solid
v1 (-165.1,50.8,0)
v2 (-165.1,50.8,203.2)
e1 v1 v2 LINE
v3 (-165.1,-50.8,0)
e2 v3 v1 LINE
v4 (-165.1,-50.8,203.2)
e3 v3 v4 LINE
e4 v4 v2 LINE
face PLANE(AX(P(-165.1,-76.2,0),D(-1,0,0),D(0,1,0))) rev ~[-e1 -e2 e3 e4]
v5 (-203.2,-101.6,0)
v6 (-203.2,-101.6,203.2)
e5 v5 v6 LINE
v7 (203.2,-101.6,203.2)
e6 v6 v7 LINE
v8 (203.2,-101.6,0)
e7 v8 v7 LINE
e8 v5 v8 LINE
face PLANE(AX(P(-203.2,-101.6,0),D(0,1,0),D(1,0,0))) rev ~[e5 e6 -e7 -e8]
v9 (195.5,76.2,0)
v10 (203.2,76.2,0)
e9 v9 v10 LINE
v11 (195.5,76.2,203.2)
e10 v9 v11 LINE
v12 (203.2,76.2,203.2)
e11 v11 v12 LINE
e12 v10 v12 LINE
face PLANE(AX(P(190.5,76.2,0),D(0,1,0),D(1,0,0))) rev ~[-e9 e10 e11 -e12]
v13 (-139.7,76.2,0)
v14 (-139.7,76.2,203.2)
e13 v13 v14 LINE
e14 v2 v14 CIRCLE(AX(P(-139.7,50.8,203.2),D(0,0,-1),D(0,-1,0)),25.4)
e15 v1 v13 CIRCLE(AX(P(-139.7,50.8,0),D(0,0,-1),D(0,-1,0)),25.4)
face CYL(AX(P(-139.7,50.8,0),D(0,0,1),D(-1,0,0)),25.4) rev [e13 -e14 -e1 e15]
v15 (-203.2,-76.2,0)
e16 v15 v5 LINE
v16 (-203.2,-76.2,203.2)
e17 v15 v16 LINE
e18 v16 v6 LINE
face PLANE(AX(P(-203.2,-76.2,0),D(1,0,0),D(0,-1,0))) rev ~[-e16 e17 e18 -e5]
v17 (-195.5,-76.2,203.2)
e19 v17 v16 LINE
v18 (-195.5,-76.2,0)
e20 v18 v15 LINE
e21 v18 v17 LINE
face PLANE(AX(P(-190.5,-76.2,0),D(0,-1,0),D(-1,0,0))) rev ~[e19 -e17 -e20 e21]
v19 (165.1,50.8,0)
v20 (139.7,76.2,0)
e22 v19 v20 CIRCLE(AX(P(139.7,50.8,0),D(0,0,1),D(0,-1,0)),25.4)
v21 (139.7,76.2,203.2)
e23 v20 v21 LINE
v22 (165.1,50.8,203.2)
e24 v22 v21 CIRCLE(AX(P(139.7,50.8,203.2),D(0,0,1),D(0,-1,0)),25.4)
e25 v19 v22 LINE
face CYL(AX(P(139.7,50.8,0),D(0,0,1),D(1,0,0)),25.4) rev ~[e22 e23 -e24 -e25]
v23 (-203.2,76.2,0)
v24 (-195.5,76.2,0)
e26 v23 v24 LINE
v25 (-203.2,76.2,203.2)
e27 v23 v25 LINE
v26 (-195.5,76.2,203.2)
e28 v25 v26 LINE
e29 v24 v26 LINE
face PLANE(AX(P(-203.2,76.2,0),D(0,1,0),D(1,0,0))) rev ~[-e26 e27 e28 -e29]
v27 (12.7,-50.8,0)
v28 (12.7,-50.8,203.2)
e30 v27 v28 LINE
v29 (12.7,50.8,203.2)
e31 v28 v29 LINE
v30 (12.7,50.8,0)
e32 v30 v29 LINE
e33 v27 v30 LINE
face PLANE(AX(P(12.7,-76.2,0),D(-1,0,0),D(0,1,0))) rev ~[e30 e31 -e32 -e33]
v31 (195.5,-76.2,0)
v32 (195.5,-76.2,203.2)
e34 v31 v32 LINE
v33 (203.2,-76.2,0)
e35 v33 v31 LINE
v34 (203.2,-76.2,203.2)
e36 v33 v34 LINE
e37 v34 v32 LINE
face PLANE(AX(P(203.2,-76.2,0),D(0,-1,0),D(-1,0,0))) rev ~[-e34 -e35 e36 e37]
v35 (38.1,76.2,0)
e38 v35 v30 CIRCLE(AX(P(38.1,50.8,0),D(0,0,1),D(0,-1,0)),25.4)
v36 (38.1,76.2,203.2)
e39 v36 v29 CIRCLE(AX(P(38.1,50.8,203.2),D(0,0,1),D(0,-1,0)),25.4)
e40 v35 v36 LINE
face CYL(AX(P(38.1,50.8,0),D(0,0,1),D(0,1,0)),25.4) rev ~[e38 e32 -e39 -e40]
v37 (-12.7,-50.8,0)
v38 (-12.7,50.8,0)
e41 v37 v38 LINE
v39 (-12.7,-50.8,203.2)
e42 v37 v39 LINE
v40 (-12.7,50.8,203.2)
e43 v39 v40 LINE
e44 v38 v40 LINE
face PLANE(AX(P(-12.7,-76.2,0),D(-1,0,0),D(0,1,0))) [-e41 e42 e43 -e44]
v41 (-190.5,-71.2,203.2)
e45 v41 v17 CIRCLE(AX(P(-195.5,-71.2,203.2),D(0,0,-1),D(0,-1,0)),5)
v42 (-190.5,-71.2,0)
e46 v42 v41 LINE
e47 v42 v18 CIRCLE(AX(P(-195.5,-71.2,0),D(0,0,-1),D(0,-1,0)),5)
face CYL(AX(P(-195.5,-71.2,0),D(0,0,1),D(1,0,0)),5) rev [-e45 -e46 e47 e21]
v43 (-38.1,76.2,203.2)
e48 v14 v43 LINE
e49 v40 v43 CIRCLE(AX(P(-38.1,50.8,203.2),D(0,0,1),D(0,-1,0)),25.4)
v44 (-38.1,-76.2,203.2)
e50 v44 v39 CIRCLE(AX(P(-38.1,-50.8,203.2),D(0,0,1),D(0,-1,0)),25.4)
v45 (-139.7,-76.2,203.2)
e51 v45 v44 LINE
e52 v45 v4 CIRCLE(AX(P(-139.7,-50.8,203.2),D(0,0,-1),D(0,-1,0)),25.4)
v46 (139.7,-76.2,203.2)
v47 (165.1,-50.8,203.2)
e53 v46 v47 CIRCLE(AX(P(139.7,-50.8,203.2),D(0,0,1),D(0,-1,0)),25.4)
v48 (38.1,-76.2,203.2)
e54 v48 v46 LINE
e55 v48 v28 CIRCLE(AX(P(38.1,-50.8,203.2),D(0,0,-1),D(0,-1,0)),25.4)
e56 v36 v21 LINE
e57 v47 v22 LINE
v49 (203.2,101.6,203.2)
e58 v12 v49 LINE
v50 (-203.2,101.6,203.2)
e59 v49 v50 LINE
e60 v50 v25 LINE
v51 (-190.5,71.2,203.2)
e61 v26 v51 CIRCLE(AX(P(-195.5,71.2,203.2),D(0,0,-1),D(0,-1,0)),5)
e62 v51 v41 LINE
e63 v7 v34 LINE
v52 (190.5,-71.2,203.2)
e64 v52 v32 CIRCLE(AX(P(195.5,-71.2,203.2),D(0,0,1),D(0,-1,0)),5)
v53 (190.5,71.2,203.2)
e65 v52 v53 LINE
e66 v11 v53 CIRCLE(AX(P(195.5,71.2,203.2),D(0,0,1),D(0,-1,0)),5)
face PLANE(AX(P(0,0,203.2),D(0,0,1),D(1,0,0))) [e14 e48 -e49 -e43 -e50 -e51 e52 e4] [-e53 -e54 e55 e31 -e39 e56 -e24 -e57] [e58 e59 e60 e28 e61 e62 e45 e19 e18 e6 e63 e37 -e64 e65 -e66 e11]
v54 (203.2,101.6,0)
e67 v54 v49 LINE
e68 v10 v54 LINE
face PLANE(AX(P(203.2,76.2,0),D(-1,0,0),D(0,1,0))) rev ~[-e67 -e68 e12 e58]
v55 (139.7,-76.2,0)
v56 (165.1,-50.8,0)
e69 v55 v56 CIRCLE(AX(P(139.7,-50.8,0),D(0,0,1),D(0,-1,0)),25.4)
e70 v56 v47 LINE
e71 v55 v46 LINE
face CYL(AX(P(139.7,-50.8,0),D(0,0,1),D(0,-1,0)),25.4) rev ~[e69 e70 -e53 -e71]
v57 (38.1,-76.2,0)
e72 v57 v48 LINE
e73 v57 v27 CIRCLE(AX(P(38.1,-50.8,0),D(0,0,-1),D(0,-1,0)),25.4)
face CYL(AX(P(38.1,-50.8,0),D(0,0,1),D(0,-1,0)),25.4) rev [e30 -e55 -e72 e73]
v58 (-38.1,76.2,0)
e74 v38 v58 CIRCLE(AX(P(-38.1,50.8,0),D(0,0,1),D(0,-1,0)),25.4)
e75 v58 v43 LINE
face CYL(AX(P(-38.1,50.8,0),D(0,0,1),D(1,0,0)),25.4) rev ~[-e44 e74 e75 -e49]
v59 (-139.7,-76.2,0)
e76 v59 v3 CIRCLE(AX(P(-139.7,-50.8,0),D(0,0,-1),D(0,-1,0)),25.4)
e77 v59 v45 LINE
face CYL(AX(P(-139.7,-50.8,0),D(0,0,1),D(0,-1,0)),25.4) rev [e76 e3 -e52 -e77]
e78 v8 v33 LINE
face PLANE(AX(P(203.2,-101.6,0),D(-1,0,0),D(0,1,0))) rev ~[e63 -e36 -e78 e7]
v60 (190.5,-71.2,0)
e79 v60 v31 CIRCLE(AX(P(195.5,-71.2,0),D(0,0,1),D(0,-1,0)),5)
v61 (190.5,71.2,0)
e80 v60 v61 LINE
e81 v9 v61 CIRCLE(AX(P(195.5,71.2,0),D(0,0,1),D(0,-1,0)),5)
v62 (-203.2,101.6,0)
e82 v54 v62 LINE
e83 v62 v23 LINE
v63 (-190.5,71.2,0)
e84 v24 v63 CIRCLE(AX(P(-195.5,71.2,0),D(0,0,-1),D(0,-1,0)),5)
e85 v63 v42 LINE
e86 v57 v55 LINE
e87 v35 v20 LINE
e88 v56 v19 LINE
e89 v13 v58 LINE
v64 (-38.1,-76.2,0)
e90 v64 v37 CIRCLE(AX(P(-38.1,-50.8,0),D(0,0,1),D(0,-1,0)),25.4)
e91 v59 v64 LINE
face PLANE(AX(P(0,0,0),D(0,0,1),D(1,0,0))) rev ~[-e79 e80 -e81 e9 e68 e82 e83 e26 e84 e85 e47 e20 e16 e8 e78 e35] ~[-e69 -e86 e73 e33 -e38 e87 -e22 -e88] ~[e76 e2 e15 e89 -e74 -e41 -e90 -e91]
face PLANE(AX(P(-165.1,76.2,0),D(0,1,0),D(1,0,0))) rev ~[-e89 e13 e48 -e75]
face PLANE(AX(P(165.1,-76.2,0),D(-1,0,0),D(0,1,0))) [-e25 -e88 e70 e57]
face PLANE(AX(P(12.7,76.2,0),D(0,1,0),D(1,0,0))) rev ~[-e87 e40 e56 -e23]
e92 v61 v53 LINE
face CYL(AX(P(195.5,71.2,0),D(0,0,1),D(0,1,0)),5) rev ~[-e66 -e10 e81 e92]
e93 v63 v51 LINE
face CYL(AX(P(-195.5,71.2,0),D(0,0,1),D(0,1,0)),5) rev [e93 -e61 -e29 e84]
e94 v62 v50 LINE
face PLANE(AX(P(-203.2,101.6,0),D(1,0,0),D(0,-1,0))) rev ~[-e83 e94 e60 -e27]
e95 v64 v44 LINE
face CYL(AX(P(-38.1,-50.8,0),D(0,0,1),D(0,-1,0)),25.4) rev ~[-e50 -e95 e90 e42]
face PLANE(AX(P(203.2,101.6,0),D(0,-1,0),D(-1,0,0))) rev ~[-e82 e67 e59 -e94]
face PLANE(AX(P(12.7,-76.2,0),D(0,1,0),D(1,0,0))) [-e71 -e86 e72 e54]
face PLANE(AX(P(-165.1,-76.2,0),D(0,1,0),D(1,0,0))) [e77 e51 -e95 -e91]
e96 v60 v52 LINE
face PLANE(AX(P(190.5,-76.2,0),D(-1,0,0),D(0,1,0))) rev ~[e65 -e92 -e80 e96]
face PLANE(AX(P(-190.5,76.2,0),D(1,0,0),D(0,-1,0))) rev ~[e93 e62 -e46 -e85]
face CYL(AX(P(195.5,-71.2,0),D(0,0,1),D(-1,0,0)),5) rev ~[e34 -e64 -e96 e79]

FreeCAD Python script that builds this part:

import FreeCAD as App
import Part
import Sketcher
Q = App.Units.Quantity


def edges_at(feature, points):
    """Names of the edges that pass closest to the given points."""
    edges = feature.Shape.Edges
    near = lambda p: min(range(len(edges)), key=lambda i: edges[i].distToShape(Part.Vertex(*p))[0])
    return sorted({f"Edge{near(p) + 1}" for p in points})

doc = App.newDocument("Part")
body = doc.addObject("PartDesign::Body", "Body")

# Sketch on XY plane
sketch1 = body.newObject("Sketcher::SketchObject", "Sketch")
sketch1.AttachmentSupport = (doc.getObject("XY_Plane"), [""])
sketch1.MapMode = "FlatFace"
sketch1.addGeometry(Part.LineSegment(App.Vector(203, 102, 0), App.Vector(-203, 102, 0)), False)
sketch1.addGeometry(Part.LineSegment(App.Vector(-203, 102, 0), App.Vector(-203, 76, 0)), False)
sketch1.addGeometry(Part.LineSegment(App.Vector(-203, 76, 0), App.Vector(-190, 76, 0)), False)
sketch1.addGeometry(Part.LineSegment(App.Vector(-190, 76, 0), App.Vector(-190, -76, 0)), False)
sketch1.addGeometry(Part.LineSegment(App.Vector(-190, -76, 0), App.Vector(-203, -76, 0)), False)
sketch1.addGeometry(Part.LineSegment(App.Vector(-203, -76, 0), App.Vector(-203, -102, 0)), False)
sketch1.addGeometry(Part.LineSegment(App.Vector(-203, -102, 0), App.Vector(203, -102, 0)), False)
sketch1.addGeometry(Part.LineSegment(App.Vector(203, -102, 0), App.Vector(203, -76, 0)), False)
sketch1.addGeometry(Part.LineSegment(App.Vector(203, -76, 0), App.Vector(190, -76, 0)), False)
sketch1.addGeometry(Part.LineSegment(App.Vector(190, -76, 0), App.Vector(190, 76, 0)), False)
sketch1.addGeometry(Part.LineSegment(App.Vector(190, 76, 0), App.Vector(203, 76, 0)), False)
sketch1.addGeometry(Part.LineSegment(App.Vector(203, 76, 0), App.Vector(203, 102, 0)), False)
sketch1.addGeometry(Part.LineSegment(App.Vector(-13, -76, 0), App.Vector(-165, -76, 0)), False)
sketch1.addGeometry(Part.LineSegment(App.Vector(-165, -76, 0), App.Vector(-165, 76, 0)), False)
sketch1.addGeometry(Part.LineSegment(App.Vector(-165, 76, 0), App.Vector(-13, 76, 0)), False)
sketch1.addGeometry(Part.LineSegment(App.Vector(-13, 76, 0), App.Vector(-13, -76, 0)), False)
sketch1.addGeometry(Part.LineSegment(App.Vector(165, -76, 0), App.Vector(13, -76, 0)), False)
sketch1.addGeometry(Part.LineSegment(App.Vector(13, -76, 0), App.Vector(13, 76, 0)), False)
sketch1.addGeometry(Part.LineSegment(App.Vector(13, 76, 0), App.Vector(165, 76, 0)), False)
sketch1.addGeometry(Part.LineSegment(App.Vector(165, 76, 0), App.Vector(165, -76, 0)), False)
sketch1.addConstraint(Sketcher.Constraint("Coincident", 0, 2, 1, 1))
sketch1.addConstraint(Sketcher.Constraint("Coincident", 1, 2, 2, 1))
sketch1.addConstraint(Sketcher.Constraint("Coincident", 2, 2, 3, 1))
sketch1.addConstraint(Sketcher.Constraint("Coincident", 3, 2, 4, 1))
sketch1.addConstraint(Sketcher.Constraint("Coincident", 4, 2, 5, 1))
sketch1.addConstraint(Sketcher.Constraint("Coincident", 5, 2, 6, 1))
sketch1.addConstraint(Sketcher.Constraint("Coincident", 6, 2, 7, 1))
sketch1.addConstraint(Sketcher.Constraint("Coincident", 7, 2, 8, 1))
sketch1.addConstraint(Sketcher.Constraint("Coincident", 8, 2, 9, 1))
sketch1.addConstraint(Sketcher.Constraint("Coincident", 9, 2, 10, 1))
sketch1.addConstraint(Sketcher.Constraint("Coincident", 10, 2, 11, 1))
sketch1.addConstraint(Sketcher.Constraint("Coincident", 11, 2, 0, 1))
sketch1.addConstraint(Sketcher.Constraint("Coincident", 12, 2, 13, 1))
sketch1.addConstraint(Sketcher.Constraint("Coincident", 13, 2, 14, 1))
sketch1.addConstraint(Sketcher.Constraint("Coincident", 14, 2, 15, 1))
sketch1.addConstraint(Sketcher.Constraint("Coincident", 15, 2, 12, 1))
sketch1.addConstraint(Sketcher.Constraint("Coincident", 16, 2, 17, 1))
sketch1.addConstraint(Sketcher.Constraint("Coincident", 17, 2, 18, 1))
sketch1.addConstraint(Sketcher.Constraint("Coincident", 18, 2, 19, 1))
sketch1.addConstraint(Sketcher.Constraint("Coincident", 19, 2, 16, 1))
sketch1.addConstraint(Sketcher.Constraint("Horizontal", 0))
sketch1.addConstraint(Sketcher.Constraint("Vertical", 1))
sketch1.addConstraint(Sketcher.Constraint("Horizontal", 2))
sketch1.addConstraint(Sketcher.Constraint("Vertical", 3))
sketch1.addConstraint(Sketcher.Constraint("Horizontal", 4))
sketch1.addConstraint(Sketcher.Constraint("Vertical", 5))
sketch1.addConstraint(Sketcher.Constraint("Horizontal", 6))
sketch1.addConstraint(Sketcher.Constraint("Vertical", 7))
sketch1.addConstraint(Sketcher.Constraint("Horizontal", 8))
sketch1.addConstraint(Sketcher.Constraint("Vertical", 9))
sketch1.addConstraint(Sketcher.Constraint("Horizontal", 10))
sketch1.addConstraint(Sketcher.Constraint("Vertical", 11))
sketch1.addConstraint(Sketcher.Constraint("Horizontal", 12))
sketch1.addConstraint(Sketcher.Constraint("Vertical", 13))
sketch1.addConstraint(Sketcher.Constraint("Horizontal", 14))
sketch1.addConstraint(Sketcher.Constraint("Vertical", 15))
sketch1.addConstraint(Sketcher.Constraint("Horizontal", 16))
sketch1.addConstraint(Sketcher.Constraint("Vertical", 17))
sketch1.addConstraint(Sketcher.Constraint("Horizontal", 18))
sketch1.addConstraint(Sketcher.Constraint("Vertical", 19))
sketch1.addConstraint(Sketcher.Constraint("Symmetric", 0, 2, 6, 2, -1, 1))
sketch1.addConstraint(Sketcher.Constraint("Symmetric", 2, 2, 8, 2, -1, 1))
sketch1.addConstraint(Sketcher.Constraint("Symmetric", 4, 2, 10, 2, -1, 1))
sketch1.addConstraint(Sketcher.Constraint("Symmetric", 14, 2, 16, 2, -1, 1))
sketch1.addConstraint(Sketcher.Constraint("Symmetric", 12, 2, 18, 2, -1, 1))
sketch1.addConstraint(Sketcher.Constraint("Symmetric", 4, 2, 7, 2, -2))
sketch1.addConstraint(Sketcher.Constraint("Horizontal", 8, 2, 12, 2))
sketch1.addConstraint(Sketcher.Constraint("Horizontal", 10, 2, 13, 2))
sketch1.addConstraint(Sketcher.Constraint("Equal", 18, 3))
sketch1.addConstraint(Sketcher.Constraint("DistanceX", 0, 2, 0, 1, Q("16 in")))
sketch1.addConstraint(Sketcher.Constraint("DistanceX", 12, 2, 12, 1, Q("6 in")))
sketch1.addConstraint(Sketcher.Constraint("DistanceY", 1, 2, 1, 1, Q("1 in")))
sketch1.addConstraint(Sketcher.Constraint("DistanceX", 2, 1, 2, 2, Q("0.5 in")))
sketch1.addConstraint(Sketcher.Constraint("DistanceX", 3, 2, 12, 2, Q("1 in")))
pad1 = body.newObject("PartDesign::Pad", "Pad")
pad1.Profile = sketch1
pad1.Length = Q("8 in")
doc.recompute()

fillet = body.newObject("PartDesign::Fillet", "Fillet")
fillet.Base = (pad1, edges_at(pad1, [
    (-165.1, 76.2, 101.6),
    (-165.1, -76.2, 101.6),
    (12.7, -76.2, 101.6),
    (12.7, 76.2, 101.6),
    (165.1, 76.2, 101.6),
    (165.1, -76.2, 101.6),
    (-12.7, 76.2, 101.6),
    (-12.7, -76.2, 101.6),
]))
fillet.Radius = Q("1 in")
doc.recompute()

fillet2 = body.newObject("PartDesign::Fillet", "Fillet001")
fillet2.Base = (fillet, edges_at(fillet, [
    (-190.5, 76.2, 101.6),
    (-190.5, -76.2, 101.6),
    (190.5, 76.2, 101.6),
    (190.5, -76.2, 101.6),
]))
fillet2.Radius = 5

doc.recompute()
